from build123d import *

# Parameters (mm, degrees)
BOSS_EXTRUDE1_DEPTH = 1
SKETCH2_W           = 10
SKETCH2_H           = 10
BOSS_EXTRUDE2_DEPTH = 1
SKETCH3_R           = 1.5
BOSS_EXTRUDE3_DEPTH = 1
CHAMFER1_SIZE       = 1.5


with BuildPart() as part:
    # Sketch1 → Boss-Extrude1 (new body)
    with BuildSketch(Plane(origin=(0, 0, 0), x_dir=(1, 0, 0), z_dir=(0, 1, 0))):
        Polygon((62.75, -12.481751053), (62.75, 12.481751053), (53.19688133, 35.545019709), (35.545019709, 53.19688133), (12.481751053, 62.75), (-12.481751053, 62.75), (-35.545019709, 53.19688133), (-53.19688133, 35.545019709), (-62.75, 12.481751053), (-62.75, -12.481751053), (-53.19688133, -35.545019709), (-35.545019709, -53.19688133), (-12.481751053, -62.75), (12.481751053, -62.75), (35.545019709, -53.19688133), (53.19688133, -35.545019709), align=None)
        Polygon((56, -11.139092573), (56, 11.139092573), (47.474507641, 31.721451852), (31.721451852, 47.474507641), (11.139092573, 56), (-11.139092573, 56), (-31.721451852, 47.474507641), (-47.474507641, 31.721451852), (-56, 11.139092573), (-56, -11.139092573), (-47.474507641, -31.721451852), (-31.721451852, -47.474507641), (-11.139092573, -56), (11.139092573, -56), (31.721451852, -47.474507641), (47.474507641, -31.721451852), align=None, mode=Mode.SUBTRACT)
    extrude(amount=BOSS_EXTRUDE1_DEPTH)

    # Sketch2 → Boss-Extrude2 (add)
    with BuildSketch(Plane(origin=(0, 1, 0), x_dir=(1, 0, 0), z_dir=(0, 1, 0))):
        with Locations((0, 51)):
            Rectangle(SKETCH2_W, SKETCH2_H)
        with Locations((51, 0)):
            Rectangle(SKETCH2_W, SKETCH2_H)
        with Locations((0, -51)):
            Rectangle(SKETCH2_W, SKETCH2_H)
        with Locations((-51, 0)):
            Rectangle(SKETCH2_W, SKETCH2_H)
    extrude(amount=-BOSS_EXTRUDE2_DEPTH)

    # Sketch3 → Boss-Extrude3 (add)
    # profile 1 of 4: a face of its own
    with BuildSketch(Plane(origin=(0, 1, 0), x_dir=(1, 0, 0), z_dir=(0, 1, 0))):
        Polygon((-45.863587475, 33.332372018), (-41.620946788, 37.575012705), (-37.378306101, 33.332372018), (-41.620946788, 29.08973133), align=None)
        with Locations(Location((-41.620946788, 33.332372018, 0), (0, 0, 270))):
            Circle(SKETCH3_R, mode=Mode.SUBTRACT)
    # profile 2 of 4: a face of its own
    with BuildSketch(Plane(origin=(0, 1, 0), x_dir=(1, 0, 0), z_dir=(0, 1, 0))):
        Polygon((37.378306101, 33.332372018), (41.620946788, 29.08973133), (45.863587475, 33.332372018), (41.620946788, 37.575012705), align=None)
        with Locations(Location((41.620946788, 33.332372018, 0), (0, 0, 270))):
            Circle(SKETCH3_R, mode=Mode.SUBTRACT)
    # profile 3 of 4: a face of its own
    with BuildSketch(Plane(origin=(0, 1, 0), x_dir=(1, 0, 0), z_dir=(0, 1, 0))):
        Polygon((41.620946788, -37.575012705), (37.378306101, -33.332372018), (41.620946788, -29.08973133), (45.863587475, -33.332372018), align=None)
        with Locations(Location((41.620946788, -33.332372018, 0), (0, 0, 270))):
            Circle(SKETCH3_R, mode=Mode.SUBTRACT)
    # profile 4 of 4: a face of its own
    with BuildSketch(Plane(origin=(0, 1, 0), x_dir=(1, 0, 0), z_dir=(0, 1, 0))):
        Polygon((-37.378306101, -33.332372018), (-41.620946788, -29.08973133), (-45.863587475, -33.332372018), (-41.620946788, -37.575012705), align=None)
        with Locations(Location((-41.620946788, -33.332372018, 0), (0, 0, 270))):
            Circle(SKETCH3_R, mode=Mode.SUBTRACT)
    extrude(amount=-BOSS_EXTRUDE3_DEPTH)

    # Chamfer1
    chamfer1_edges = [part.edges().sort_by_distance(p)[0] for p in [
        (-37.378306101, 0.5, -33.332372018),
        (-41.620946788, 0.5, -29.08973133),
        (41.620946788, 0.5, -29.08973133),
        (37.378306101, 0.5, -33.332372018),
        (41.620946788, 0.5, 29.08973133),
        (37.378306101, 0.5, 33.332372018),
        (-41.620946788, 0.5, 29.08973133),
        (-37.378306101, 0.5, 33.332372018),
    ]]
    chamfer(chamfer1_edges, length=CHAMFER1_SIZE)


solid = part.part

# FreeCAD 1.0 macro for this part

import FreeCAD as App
import Part
import Sketcher
from FreeCAD import Vector
Q = App.Units.Quantity


def edges_at(feature, points):
    """Names of the edges that pass closest to the given points."""
    edges = feature.Shape.Edges
    near = lambda p: min(range(len(edges)), key=lambda i: edges[i].distToShape(Part.Vertex(*p))[0])
    return sorted({f"Edge{near(p) + 1}" for p in points})


def add_polygon(sketch, points):
    """Adds a closed chain of lines whose ends are joined by coincident constraints."""
    first, n = sketch.GeometryCount, len(points)
    for a, b in zip(points, points[1:] + points[:1]):
        sketch.addGeometry(Part.LineSegment(App.Vector(*a, 0), App.Vector(*b, 0)), False)
    for i in range(n):
        sketch.addConstraint(Sketcher.Constraint("Coincident", first + i, 2, first + (i + 1) % n, 1))

doc = App.newDocument("Part")
body = doc.addObject("PartDesign::Body", "Body")

# Sketch on XZ plane
sketch1 = body.newObject("Sketcher::SketchObject", "Sketch")
sketch1.AttachmentSupport = (doc.getObject("XZ_Plane"), [""])
sketch1.MapMode = "FlatFace"
add_polygon(sketch1, [(63, 12), (63, -12), (53, -36), (36, -53), (12, -63), (-12, -63), (-36, -53), (-53, -36), (-63, -12), (-63, 12), (-53, 36), (-36, 53), (-12, 63), (12, 63), (36, 53), (53, 36)])  # lines 0-15
add_polygon(sketch1, [(56, -11), (56, 11), (47, 32), (32, 47), (11, 56), (-11, 56), (-32, 47), (-47, 32), (-56, 11), (-56, -11), (-47, -32), (-32, -47), (-11, -56), (11, -56), (32, -47), (47, -32)])  # lines 16-31
sketch1.addConstraint(Sketcher.Constraint("Vertical", 0))
sketch1.addConstraint(Sketcher.Constraint("Horizontal", 4))
sketch1.addConstraint(Sketcher.Constraint("Vertical", 8))
sketch1.addConstraint(Sketcher.Constraint("Horizontal", 12))
sketch1.addConstraint(Sketcher.Constraint("Vertical", 16))
sketch1.addConstraint(Sketcher.Constraint("Horizontal", 20))
sketch1.addConstraint(Sketcher.Constraint("Vertical", 24))
sketch1.addConstraint(Sketcher.Constraint("Horizontal", 28))
sketch1.addConstraint(Sketcher.Constraint("Symmetric", 0, 2, 8, 2, -1, 1))
sketch1.addConstraint(Sketcher.Constraint("Symmetric", 1, 2, 9, 2, -1, 1))
sketch1.addConstraint(Sketcher.Constraint("Symmetric", 2, 2, 10, 2, -1, 1))
sketch1.addConstraint(Sketcher.Constraint("Symmetric", 3, 2, 11, 2, -1, 1))
sketch1.addConstraint(Sketcher.Constraint("Symmetric", 5, 2, 13, 2, -1, 1))
sketch1.addConstraint(Sketcher.Constraint("Symmetric", 6, 2, 14, 2, -1, 1))
sketch1.addConstraint(Sketcher.Constraint("Symmetric", 16, 2, 24, 2, -1, 1))
sketch1.addConstraint(Sketcher.Constraint("Symmetric", 17, 2, 25, 2, -1, 1))
sketch1.addConstraint(Sketcher.Constraint("Symmetric", 18, 2, 26, 2, -1, 1))
sketch1.addConstraint(Sketcher.Constraint("Symmetric", 19, 2, 27, 2, -1, 1))
sketch1.addConstraint(Sketcher.Constraint("Symmetric", 21, 2, 29, 2, -1, 1))
sketch1.addConstraint(Sketcher.Constraint("Symmetric", 22, 2, 30, 2, -1, 1))
sketch1.addConstraint(Sketcher.Constraint("Symmetric", 2, 2, 5, 2, -2))
sketch1.addConstraint(Sketcher.Constraint("Symmetric", 1, 2, 6, 2, -2))
sketch1.addConstraint(Sketcher.Constraint("Symmetric", 18, 2, 21, 2, -2))
sketch1.addConstraint(Sketcher.Constraint("Symmetric", 17, 2, 22, 2, -2))
sketch1.addConstraint(Sketcher.Constraint("Perpendicular", 1, 5))
sketch1.addConstraint(Sketcher.Constraint("Perpendicular", 2, 6))
sketch1.addConstraint(Sketcher.Constraint("Perpendicular", 3, 7))
sketch1.addConstraint(Sketcher.Constraint("Perpendicular", 9, 13))
sketch1.addConstraint(Sketcher.Constraint("Perpendicular", 11, 15))
sketch1.addConstraint(Sketcher.Constraint("Parallel", 15, 17))
sketch1.addConstraint(Sketcher.Constraint("Parallel", 14, 18))
sketch1.addConstraint(Sketcher.Constraint("Parallel", 13, 19))
sketch1.addConstraint(Sketcher.Constraint("Perpendicular", 17, 21))
sketch1.addConstraint(Sketcher.Constraint("Perpendicular", 19, 23))
sketch1.addConstraint(Sketcher.Constraint("Perpendicular", 25, 29))
sketch1.addConstraint(Sketcher.Constraint("Perpendicular", 27, 31))
sketch1.addConstraint(Sketcher.Constraint("Horizontal", 0, 2, 7, 2))
sketch1.addConstraint(Sketcher.Constraint("Equal", 12, 0))
sketch1.addConstraint(Sketcher.Constraint("Equal", 28, 16))
sketch1.addConstraint(Sketcher.Constraint("Equal", 1, 2))
sketch1.addConstraint(Sketcher.Constraint("Equal", 2, 3))
sketch1.addConstraint(Sketcher.Constraint("Equal", 17, 18))
sketch1.addConstraint(Sketcher.Constraint("Equal", 18, 19))
sketch1.addConstraint(Sketcher.Constraint("DistanceX", -1, 1, 16, 2, Q("56 mm")))
sketch1.addConstraint(Sketcher.Constraint("Angle", 1, Q("-112.5 deg")))
sketch1.addConstraint(Sketcher.Constraint("DistanceX", -1, 1, 0, 2, Q("62.75 mm")))
sketch1.addConstraint(Sketcher.Constraint("DistanceX", 5, 2, 1, 2, Q("88.741901 mm")))
sketch1.addConstraint(Sketcher.Constraint("DistanceY", 15, 2, 17, 2, Q("19.239701 mm")))
pad1 = body.newObject("PartDesign::Pad", "Pad")
pad1.Profile = sketch1
pad1.Length = 1
pad1.Reversed = True

# Sketch on XZ plane
sketch2 = body.newObject("Sketcher::SketchObject", "Sketch001")
sketch2.AttachmentSupport = (doc.getObject("XZ_Plane"), [""])
sketch2.MapMode = "FlatFace"
sketch2.AttachmentOffset = App.Placement(Vector(0, 0, -1), App.Rotation())
add_polygon(sketch2, [(-5, -56), (-5, -46), (5, -46), (5, -56)])  # lines 0-3
add_polygon(sketch2, [(46, -5), (46, 5), (56, 5), (56, -5)])  # lines 4-7
add_polygon(sketch2, [(-5, 46), (-5, 56), (5, 56), (5, 46)])  # lines 8-11
add_polygon(sketch2, [(-56, -5), (-56, 5), (-46, 5), (-46, -5)])  # lines 12-15
sketch2.addConstraint(Sketcher.Constraint("Vertical", 0))
sketch2.addConstraint(Sketcher.Constraint("Horizontal", 1))
sketch2.addConstraint(Sketcher.Constraint("Vertical", 2))
sketch2.addConstraint(Sketcher.Constraint("Horizontal", 3))
sketch2.addConstraint(Sketcher.Constraint("Vertical", 4))
sketch2.addConstraint(Sketcher.Constraint("Horizontal", 5))
sketch2.addConstraint(Sketcher.Constraint("Vertical", 6))
sketch2.addConstraint(Sketcher.Constraint("Horizontal", 7))
sketch2.addConstraint(Sketcher.Constraint("Vertical", 8))
sketch2.addConstraint(Sketcher.Constraint("Horizontal", 9))
sketch2.addConstraint(Sketcher.Constraint("Vertical", 10))
sketch2.addConstraint(Sketcher.Constraint("Horizontal", 11))
sketch2.addConstraint(Sketcher.Constraint("Vertical", 12))
sketch2.addConstraint(Sketcher.Constraint("Horizontal", 13))
sketch2.addConstraint(Sketcher.Constraint("Vertical", 14))
sketch2.addConstraint(Sketcher.Constraint("Horizontal", 15))
sketch2.addConstraint(Sketcher.Constraint("Symmetric", 2, 2, 8, 2, -1, 1))
sketch2.addConstraint(Sketcher.Constraint("Symmetric", 0, 2, 10, 2, -1, 1))
sketch2.addConstraint(Sketcher.Constraint("Symmetric", 6, 2, 12, 2, -1, 1))
sketch2.addConstraint(Sketcher.Constraint("Symmetric", 4, 2, 14, 2, -1, 1))
sketch2.addConstraint(Sketcher.Constraint("Horizontal", 5, 2, 12, 2))
sketch2.addConstraint(Sketcher.Constraint("Vertical", 3, 2, 8, 2))
sketch2.addConstraint(Sketcher.Constraint("Equal", 3, 5))
sketch2.addConstraint(Sketcher.Constraint("Equal", 15, 0))
sketch2.addConstraint(Sketcher.Constraint("Equal", 2, 4))
sketch2.addConstraint(Sketcher.Constraint("DistanceX", 1, 1, 1, 2, Q("10 mm")))
sketch2.addConstraint(Sketcher.Constraint("DistanceY", 0, 2, -1, 1, Q("46 mm")))
sketch2.addConstraint(Sketcher.Constraint("DistanceX", -1, 1, 4, 2, Q("46 mm")))
pad2 = body.newObject("PartDesign::Pad", "Pad001")
pad2.Profile = sketch2
pad2.Length = 1

# Sketch on XZ plane
sketch3 = body.newObject("Sketcher::SketchObject", "Sketch002")
sketch3.AttachmentSupport = (doc.getObject("XZ_Plane"), [""])
sketch3.MapMode = "FlatFace"
sketch3.AttachmentOffset = App.Placement(Vector(0, 0, -1), App.Rotation())
add_polygon(sketch3, [(-41.6, -37.6), (-45.9, -33.3), (-41.6, -29.1), (-37.4, -33.3)])  # lines 0-3
sketch3.addGeometry(Part.Circle(Vector(-41.6, -33.3, 0), Vector(0, 0, 1), 1.5), False)  # 4
add_polygon(sketch3, [(37.4, -33.3), (41.6, -29.1), (45.9, -33.3), (41.6, -37.6)])  # lines 5-8
sketch3.addGeometry(Part.Circle(Vector(41.6, -33.3, 0), Vector(0, 0, 1), 1.5), False)  # 9
add_polygon(sketch3, [(37.4, 33.3), (41.6, 37.6), (45.9, 33.3), (41.6, 29.1)])  # lines 10-13
sketch3.addGeometry(Part.Circle(Vector(41.6, 33.3, 0), Vector(0, 0, 1), 1.5), False)  # 14
add_polygon(sketch3, [(-37.4, 33.3), (-41.6, 29.1), (-45.9, 33.3), (-41.6, 37.6)])  # lines 15-18
sketch3.addGeometry(Part.Circle(Vector(-41.6, 33.3, 0), Vector(0, 0, 1), 1.5), False)  # 19
sketch3.addConstraint(Sketcher.Constraint("Equal", 4, 9))
sketch3.addConstraint(Sketcher.Constraint("Equal", 9, 14))
sketch3.addConstraint(Sketcher.Constraint("Equal", 14, 19))
sketch3.addConstraint(Sketcher.Constraint("Symmetric", 4, 3, 14, 3, -1, 1))
sketch3.addConstraint(Sketcher.Constraint("Symmetric", 9, 3, 19, 3, -1, 1))
sketch3.addConstraint(Sketcher.Constraint("Symmetric", 3, 2, 10, 2, -1, 1))
sketch3.addConstraint(Sketcher.Constraint("Symmetric", 0, 2, 11, 2, -1, 1))
sketch3.addConstraint(Sketcher.Constraint("Symmetric", 1, 2, 12, 2, -1, 1))
sketch3.addConstraint(Sketcher.Constraint("Symmetric", 2, 2, 13, 2, -1, 1))
sketch3.addConstraint(Sketcher.Constraint("Symmetric", 5, 2, 15, 2, -1, 1))
sketch3.addConstraint(Sketcher.Constraint("Symmetric", 6, 2, 16, 2, -1, 1))
sketch3.addConstraint(Sketcher.Constraint("Symmetric", 7, 2, 17, 2, -1, 1))
sketch3.addConstraint(Sketcher.Constraint("Symmetric", 8, 2, 18, 2, -1, 1))
sketch3.addConstraint(Sketcher.Constraint("Symmetric", 4, 3, 9, 3, -2))
sketch3.addConstraint(Sketcher.Constraint("Symmetric", 1, 2, 5, 2, -2))
sketch3.addConstraint(Sketcher.Constraint("Symmetric", 0, 2, 6, 2, -2))
sketch3.addConstraint(Sketcher.Constraint("Symmetric", 3, 2, 7, 2, -2))
sketch3.addConstraint(Sketcher.Constraint("Symmetric", 2, 2, 8, 2, -2))
sketch3.addConstraint(Sketcher.Constraint("Perpendicular", 0, 1))
sketch3.addConstraint(Sketcher.Constraint("Perpendicular", 1, 2))
sketch3.addConstraint(Sketcher.Constraint("Perpendicular", 2, 3))
sketch3.addConstraint(Sketcher.Constraint("Parallel", 3, 5))
sketch3.addConstraint(Sketcher.Constraint("Horizontal", 9, 3, 0, 2))
sketch3.addConstraint(Sketcher.Constraint("Horizontal", 0, 2, 2, 2))
sketch3.addConstraint(Sketcher.Constraint("Vertical", 19, 3, 1, 2))
sketch3.addConstraint(Sketcher.Constraint("Diameter", 4, Q("3 mm")))
sketch3.addConstraint(Sketcher.Constraint("Distance", 0, Q("6 mm")))
sketch3.addConstraint(Sketcher.Constraint("DistanceY", 1, 2, -1, 1, Q("29.089731 mm")))
sketch3.addConstraint(Sketcher.Constraint("DistanceX", 4, 3, -1, 1, Q("41.620947 mm")))
pad3 = body.newObject("PartDesign::Pad", "Pad002")
pad3.Profile = sketch3
pad3.Length = 1
doc.recompute()

chamfer = body.newObject("PartDesign::Chamfer", "Chamfer")
chamfer.Base = (pad3, edges_at(pad3, [
    (-37.378, 0.5, -33.332),
    (-41.621, 0.5, -29.09),
    (41.621, 0.5, -29.09),
    (37.378, 0.5, -33.332),
    (41.621, 0.5, 29.09),
    (37.378, 0.5, 33.332),
    (-41.621, 0.5, 29.09),
    (-37.378, 0.5, 33.332),
]))
chamfer.Size = 1.5

doc.recompute()
